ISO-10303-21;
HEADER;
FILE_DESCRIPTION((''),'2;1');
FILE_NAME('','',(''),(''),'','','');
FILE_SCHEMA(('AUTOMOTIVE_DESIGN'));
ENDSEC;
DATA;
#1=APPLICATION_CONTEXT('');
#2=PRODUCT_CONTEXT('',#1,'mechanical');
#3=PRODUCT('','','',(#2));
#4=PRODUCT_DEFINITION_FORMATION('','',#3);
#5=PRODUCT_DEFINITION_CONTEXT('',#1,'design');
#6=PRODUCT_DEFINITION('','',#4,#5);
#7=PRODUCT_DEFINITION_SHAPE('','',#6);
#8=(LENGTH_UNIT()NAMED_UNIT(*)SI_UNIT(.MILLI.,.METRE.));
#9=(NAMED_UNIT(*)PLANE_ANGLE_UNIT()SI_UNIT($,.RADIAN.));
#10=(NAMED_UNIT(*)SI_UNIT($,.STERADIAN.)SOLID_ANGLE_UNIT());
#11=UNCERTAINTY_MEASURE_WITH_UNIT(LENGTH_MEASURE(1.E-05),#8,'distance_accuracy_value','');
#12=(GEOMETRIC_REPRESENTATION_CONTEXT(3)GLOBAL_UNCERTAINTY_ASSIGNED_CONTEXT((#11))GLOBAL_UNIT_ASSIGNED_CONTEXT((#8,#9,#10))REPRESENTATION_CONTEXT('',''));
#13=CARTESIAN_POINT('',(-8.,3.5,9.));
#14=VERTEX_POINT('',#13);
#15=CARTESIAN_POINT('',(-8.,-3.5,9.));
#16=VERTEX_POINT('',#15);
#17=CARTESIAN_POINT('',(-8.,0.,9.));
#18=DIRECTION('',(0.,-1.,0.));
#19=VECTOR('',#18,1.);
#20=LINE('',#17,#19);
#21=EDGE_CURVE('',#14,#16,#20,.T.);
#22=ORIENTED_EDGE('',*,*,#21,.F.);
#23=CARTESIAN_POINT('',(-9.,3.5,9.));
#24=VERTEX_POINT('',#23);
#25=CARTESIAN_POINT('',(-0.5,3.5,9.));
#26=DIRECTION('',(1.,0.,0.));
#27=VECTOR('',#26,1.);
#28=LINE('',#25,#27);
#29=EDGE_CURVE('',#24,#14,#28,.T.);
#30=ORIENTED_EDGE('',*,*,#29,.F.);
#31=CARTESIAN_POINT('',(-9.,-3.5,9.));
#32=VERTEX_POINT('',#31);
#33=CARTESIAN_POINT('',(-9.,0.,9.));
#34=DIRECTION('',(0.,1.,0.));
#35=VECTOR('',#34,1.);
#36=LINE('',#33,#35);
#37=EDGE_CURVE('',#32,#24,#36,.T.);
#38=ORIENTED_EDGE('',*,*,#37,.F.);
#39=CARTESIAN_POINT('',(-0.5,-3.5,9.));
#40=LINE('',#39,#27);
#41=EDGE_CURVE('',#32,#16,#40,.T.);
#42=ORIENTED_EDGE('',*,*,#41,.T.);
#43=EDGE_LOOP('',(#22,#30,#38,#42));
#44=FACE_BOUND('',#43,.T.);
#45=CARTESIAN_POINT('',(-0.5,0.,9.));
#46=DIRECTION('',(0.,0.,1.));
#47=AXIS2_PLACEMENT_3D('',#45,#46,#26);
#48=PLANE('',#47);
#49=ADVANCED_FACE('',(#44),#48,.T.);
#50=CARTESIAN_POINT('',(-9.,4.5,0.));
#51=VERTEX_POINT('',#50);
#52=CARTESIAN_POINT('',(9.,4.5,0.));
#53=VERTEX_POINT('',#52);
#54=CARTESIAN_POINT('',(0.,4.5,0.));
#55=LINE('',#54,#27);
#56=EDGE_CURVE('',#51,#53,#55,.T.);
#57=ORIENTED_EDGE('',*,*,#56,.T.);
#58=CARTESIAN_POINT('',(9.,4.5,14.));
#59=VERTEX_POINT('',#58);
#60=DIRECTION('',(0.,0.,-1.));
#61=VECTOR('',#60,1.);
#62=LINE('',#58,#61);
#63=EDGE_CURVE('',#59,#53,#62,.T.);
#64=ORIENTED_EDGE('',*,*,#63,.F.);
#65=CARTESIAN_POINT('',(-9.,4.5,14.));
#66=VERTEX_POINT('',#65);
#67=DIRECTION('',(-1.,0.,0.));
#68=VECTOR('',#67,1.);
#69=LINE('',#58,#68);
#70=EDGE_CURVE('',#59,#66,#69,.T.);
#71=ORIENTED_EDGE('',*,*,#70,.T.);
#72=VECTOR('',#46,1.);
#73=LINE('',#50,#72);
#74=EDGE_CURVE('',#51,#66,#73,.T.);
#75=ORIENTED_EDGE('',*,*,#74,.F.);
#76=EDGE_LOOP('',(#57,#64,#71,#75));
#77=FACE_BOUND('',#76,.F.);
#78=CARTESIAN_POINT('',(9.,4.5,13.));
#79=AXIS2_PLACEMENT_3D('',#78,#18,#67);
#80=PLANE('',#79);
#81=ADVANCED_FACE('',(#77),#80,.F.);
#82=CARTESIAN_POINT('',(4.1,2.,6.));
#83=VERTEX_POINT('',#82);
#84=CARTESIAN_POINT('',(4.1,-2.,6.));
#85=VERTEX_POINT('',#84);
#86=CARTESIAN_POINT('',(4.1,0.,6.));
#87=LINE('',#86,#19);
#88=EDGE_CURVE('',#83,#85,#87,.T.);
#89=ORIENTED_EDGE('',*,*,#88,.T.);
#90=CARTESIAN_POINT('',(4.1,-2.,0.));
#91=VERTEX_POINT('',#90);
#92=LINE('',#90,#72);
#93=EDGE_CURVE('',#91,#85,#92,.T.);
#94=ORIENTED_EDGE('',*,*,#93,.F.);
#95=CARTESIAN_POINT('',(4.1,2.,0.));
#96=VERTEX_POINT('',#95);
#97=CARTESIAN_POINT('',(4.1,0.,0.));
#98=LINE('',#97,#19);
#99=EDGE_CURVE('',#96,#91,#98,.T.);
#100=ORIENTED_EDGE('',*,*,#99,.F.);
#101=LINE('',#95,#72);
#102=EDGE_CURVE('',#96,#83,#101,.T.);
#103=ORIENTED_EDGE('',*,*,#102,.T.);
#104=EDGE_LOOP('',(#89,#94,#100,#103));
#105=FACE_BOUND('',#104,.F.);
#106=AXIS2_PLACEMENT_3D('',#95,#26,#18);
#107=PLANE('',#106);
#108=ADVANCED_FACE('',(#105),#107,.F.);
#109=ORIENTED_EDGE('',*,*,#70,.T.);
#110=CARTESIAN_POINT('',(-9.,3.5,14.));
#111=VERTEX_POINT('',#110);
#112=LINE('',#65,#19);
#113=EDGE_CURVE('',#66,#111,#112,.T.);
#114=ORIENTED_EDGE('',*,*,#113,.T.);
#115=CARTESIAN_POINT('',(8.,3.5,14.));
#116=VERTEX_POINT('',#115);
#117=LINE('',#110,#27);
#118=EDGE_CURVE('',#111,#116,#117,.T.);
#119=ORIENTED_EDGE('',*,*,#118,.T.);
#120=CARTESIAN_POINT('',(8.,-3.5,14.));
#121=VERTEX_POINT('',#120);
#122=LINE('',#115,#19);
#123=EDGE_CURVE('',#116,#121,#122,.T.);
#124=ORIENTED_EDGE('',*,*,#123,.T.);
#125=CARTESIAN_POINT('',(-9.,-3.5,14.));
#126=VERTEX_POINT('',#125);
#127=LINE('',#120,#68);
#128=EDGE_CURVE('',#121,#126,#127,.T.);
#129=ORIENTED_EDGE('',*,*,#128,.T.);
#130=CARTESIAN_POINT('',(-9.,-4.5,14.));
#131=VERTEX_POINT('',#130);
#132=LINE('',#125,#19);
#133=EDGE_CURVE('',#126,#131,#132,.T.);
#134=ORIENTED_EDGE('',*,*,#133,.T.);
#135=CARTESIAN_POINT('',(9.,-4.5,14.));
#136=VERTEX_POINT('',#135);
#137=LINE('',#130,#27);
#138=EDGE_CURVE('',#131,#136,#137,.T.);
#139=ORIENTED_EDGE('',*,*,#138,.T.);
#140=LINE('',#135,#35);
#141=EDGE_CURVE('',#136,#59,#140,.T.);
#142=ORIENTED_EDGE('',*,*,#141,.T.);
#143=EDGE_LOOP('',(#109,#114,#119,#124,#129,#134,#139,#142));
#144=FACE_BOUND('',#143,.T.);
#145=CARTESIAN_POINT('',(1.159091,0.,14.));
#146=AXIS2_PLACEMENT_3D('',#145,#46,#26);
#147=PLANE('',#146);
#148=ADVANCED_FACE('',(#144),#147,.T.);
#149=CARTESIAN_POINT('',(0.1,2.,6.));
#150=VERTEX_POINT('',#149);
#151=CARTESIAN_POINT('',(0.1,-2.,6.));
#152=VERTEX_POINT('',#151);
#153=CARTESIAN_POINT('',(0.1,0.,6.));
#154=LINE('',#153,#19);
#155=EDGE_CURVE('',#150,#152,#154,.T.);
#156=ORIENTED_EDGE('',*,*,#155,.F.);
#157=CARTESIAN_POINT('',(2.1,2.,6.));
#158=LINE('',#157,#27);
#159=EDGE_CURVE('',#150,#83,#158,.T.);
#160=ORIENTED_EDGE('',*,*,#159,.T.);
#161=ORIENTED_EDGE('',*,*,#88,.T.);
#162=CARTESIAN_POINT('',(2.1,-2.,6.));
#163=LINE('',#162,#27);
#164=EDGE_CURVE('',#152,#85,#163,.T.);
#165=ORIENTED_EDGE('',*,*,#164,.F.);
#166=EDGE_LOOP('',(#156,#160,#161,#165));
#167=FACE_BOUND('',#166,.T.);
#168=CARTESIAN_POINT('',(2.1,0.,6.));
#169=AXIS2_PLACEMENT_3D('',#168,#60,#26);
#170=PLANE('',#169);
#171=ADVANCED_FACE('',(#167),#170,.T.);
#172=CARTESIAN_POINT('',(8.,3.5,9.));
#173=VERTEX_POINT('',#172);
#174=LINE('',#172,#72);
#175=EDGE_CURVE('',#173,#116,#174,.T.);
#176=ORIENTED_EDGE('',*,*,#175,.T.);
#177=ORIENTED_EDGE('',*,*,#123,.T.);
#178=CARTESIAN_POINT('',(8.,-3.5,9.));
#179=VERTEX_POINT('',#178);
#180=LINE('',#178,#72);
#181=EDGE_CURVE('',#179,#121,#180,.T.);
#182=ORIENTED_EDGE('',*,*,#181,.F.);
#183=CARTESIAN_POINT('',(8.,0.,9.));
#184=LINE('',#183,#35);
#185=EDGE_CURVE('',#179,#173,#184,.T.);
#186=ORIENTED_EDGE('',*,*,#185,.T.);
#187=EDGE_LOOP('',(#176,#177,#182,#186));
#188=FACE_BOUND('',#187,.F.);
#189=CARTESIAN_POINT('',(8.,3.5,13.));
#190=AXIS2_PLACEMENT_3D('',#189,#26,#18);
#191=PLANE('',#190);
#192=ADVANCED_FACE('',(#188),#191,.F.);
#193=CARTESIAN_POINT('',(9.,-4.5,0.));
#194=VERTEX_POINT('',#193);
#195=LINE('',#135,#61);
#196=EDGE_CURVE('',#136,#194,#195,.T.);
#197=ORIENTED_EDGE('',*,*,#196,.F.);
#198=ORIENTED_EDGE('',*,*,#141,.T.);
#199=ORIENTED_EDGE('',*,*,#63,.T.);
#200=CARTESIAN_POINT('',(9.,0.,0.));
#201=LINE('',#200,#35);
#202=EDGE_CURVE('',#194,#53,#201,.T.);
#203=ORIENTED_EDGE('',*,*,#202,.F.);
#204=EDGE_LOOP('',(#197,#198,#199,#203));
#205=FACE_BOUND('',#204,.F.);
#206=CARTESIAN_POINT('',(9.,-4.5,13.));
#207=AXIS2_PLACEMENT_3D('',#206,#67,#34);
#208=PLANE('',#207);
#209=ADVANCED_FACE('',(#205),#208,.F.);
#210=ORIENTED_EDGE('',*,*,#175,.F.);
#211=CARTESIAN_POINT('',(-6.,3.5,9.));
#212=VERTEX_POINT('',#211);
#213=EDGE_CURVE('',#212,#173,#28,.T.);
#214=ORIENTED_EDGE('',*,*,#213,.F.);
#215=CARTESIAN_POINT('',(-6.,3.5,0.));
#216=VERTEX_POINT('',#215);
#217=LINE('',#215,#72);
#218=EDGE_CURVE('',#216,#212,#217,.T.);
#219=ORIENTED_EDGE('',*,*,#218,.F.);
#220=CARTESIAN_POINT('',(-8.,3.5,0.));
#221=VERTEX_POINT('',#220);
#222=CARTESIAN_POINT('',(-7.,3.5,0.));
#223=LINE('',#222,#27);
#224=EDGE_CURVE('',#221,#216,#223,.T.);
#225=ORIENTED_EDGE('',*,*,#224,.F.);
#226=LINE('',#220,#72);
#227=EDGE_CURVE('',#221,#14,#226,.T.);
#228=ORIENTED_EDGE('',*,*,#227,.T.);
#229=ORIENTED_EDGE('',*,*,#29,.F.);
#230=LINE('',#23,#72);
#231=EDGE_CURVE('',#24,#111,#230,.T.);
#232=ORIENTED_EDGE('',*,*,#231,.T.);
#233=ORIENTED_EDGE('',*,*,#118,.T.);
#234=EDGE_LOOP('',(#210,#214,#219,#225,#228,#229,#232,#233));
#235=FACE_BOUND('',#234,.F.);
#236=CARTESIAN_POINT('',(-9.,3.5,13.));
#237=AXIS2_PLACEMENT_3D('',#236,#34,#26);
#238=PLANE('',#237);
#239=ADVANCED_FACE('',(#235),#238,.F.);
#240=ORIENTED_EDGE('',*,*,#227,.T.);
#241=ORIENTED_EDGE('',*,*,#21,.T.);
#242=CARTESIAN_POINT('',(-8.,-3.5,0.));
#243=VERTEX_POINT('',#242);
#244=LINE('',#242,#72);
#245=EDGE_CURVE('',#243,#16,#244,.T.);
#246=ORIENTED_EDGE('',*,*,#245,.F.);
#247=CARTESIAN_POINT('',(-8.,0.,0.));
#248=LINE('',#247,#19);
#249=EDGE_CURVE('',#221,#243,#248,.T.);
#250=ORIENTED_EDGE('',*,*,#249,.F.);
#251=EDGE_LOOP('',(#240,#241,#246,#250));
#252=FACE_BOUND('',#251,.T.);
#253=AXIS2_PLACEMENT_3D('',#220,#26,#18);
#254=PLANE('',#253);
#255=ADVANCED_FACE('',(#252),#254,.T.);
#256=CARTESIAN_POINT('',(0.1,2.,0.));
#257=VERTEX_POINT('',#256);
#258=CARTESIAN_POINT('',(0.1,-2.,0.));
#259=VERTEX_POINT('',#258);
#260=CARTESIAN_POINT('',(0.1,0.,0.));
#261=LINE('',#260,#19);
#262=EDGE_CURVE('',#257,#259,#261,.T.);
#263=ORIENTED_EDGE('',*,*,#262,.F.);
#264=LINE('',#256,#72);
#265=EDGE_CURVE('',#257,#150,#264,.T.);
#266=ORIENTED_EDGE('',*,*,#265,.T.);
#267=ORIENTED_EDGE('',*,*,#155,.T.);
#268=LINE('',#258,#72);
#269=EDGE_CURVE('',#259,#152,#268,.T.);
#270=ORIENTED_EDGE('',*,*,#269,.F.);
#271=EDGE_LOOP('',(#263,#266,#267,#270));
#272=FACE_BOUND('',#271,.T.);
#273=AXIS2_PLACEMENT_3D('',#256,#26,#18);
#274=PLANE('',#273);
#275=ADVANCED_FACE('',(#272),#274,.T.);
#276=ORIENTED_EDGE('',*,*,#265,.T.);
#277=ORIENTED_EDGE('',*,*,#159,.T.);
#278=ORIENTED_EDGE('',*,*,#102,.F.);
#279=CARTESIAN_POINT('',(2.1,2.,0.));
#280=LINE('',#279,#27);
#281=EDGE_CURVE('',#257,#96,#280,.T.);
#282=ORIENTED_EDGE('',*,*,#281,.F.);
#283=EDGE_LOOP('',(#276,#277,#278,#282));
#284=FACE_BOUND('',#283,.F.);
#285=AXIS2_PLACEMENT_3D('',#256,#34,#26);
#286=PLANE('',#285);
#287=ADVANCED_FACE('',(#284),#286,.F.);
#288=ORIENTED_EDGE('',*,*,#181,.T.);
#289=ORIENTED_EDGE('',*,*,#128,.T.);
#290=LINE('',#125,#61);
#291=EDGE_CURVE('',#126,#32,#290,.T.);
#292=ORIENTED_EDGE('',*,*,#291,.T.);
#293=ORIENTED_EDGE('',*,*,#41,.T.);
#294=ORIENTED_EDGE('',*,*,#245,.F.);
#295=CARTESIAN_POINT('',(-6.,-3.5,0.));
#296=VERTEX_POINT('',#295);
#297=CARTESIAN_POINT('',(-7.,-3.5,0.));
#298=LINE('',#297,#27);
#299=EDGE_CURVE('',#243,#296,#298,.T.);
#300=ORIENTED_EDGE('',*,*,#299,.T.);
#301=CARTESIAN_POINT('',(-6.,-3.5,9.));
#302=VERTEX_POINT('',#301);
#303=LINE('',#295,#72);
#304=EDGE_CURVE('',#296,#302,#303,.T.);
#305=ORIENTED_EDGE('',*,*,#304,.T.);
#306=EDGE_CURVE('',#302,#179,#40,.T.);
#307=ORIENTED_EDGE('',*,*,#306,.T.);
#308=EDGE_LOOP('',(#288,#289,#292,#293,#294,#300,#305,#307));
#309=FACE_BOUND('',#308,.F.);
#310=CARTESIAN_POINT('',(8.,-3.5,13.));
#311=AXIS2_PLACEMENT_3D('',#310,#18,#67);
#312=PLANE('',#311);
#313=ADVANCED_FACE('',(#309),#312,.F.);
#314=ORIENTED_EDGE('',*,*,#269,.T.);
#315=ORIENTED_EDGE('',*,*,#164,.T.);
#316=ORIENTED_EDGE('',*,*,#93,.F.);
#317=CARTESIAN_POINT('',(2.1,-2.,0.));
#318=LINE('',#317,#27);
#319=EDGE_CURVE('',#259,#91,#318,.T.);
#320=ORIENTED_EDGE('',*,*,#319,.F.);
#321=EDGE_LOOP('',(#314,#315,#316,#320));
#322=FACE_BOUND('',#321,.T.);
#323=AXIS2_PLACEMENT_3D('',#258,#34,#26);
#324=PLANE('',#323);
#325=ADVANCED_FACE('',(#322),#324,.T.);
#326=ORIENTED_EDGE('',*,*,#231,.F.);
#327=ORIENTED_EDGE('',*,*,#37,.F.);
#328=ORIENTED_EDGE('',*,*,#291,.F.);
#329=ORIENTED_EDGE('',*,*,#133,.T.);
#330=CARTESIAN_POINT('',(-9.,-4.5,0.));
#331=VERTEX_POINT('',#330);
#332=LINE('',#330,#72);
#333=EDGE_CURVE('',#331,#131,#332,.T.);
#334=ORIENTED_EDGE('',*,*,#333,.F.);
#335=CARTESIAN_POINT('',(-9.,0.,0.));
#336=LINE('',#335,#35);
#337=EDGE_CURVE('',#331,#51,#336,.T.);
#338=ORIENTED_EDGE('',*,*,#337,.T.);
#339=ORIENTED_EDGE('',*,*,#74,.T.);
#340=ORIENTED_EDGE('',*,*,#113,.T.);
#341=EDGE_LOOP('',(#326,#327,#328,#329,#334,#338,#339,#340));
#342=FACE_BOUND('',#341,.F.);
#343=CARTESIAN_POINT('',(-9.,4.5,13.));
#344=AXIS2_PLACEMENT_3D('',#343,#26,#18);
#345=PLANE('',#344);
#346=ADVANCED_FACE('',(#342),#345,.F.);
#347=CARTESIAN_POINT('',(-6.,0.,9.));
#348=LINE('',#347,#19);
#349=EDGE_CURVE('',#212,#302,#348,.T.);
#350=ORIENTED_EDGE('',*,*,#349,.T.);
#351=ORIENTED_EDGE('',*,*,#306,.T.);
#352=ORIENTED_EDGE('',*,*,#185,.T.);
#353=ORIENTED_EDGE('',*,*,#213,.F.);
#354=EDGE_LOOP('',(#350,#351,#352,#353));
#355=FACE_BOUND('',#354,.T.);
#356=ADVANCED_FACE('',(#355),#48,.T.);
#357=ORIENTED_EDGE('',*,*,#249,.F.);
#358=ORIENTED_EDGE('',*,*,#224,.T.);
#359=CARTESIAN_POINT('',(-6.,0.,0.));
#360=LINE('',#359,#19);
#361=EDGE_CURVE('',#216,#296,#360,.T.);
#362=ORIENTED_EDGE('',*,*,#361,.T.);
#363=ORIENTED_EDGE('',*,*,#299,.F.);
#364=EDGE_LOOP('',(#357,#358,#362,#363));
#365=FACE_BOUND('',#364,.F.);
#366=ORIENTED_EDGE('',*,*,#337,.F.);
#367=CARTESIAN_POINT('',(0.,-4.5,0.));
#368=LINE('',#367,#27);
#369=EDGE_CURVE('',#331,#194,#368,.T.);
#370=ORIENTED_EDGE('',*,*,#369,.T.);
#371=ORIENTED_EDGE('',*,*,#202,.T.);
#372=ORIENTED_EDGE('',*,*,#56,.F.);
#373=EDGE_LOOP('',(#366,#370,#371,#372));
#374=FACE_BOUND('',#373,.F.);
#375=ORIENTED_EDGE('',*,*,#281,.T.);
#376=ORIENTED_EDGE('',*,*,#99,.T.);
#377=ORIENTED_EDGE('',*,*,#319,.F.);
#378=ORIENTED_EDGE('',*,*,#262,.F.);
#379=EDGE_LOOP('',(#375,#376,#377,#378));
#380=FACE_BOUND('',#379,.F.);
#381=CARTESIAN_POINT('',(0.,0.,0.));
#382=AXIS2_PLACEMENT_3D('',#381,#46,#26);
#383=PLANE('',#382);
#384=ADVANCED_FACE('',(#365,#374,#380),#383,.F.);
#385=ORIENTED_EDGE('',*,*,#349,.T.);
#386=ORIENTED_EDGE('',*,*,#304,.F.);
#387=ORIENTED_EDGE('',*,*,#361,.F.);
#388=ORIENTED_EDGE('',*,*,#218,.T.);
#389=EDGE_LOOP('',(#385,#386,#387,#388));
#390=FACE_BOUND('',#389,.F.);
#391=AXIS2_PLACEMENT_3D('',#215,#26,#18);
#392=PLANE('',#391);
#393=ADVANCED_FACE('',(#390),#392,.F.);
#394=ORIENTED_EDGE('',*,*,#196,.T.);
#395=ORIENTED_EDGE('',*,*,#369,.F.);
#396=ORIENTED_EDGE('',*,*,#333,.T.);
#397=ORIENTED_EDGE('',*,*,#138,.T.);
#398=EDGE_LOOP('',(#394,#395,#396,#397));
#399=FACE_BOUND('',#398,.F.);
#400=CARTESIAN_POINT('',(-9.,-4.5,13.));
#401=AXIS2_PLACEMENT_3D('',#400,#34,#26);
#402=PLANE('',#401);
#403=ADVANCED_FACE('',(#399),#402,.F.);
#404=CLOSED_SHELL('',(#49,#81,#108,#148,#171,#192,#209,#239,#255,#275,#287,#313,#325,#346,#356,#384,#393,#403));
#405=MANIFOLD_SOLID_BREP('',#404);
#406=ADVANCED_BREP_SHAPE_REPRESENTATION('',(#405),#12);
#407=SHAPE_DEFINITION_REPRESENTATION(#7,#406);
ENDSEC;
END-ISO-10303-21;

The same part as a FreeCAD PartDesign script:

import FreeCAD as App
import Part
import Sketcher

V = App.Vector
Q = App.Units.Quantity


def add_polygon(sketch, points):
    """Adds a closed chain of lines whose ends are joined by coincident constraints."""
    first, n = sketch.GeometryCount, len(points)
    for a, b in zip(points, points[1:] + points[:1]):
        sketch.addGeometry(Part.LineSegment(App.Vector(*a, 0), App.Vector(*b, 0)), False)
    for i in range(n):
        sketch.addConstraint(Sketcher.Constraint("Coincident", first + i, 2, first + (i + 1) % n, 1))

doc = App.newDocument("Part")
body = doc.addObject("PartDesign::Body", "Body")

# Sketch on XY plane
sketch1 = doc.addObject("Sketcher::SketchObject", "Sketch")
body.addObject(sketch1)
sketch1.AttachmentSupport = (doc.XY_Plane, [""])
sketch1.MapMode = "FlatFace"
add_polygon(sketch1, [(-9, 4), (-9, -4), (9, -4), (9, 4)])  # lines 0-3
sketch1.addConstraint([
    Sketcher.Constraint("Vertical", 0),
    Sketcher.Constraint("Horizontal", 1),
    Sketcher.Constraint("Vertical", 2),
    Sketcher.Constraint("Horizontal", 3),
    Sketcher.Constraint("Symmetric", 0, 2, 2, 2, -1, 1),
    Sketcher.Constraint("DistanceX", 1, 1, 1, 2, Q("18 mm")),
    Sketcher.Constraint("DistanceY", 0, 2, 0, 1, Q("9 mm")),
])
pad1 = doc.addObject("PartDesign::Pad", "Pad")
body.addObject(pad1)
pad1.Profile = sketch1
pad1.Length = 13

# Sketch on XY plane
sketch2 = doc.addObject("Sketcher::SketchObject", "Sketch001")
body.addObject(sketch2)
sketch2.AttachmentSupport = (doc.XY_Plane, [""])
sketch2.MapMode = "FlatFace"
sketch2.AttachmentOffset = App.Placement(V(0, 0, 13), App.Rotation())
add_polygon(sketch2, [(-9, 4), (-9, -4), (8, -4), (8, 4)])  # lines 0-3
sketch2.addConstraint([
    Sketcher.Constraint("Vertical", 0),
    Sketcher.Constraint("Horizontal", 1),
    Sketcher.Constraint("Vertical", 2),
    Sketcher.Constraint("Horizontal", 3),
    Sketcher.Constraint("DistanceX", 1, 1, 1, 2, Q("17 mm")),
    Sketcher.Constraint("DistanceY", 0, 2, 0, 1, Q("7 mm")),
    Sketcher.Constraint("DistanceX", 0, 2, -1, 1, Q("9 mm")),
    Sketcher.Constraint("DistanceY", 0, 2, -1, 1, Q("3.5 mm")),
])
pocket1 = doc.addObject("PartDesign::Pocket", "Pocket")
body.addObject(pocket1)
pocket1.Profile = sketch2
pocket1.Length = 4

# Sketch on XY plane
sketch3 = doc.addObject("Sketcher::SketchObject", "Sketch002")
body.addObject(sketch3)
sketch3.AttachmentSupport = (doc.XY_Plane, [""])
sketch3.MapMode = "FlatFace"
add_polygon(sketch3, [(0.1, -2), (0.1, 2), (4.1, 2), (4.1, -2)])  # lines 0-3
sketch3.addConstraint([
    Sketcher.Constraint("Vertical", 0),
    Sketcher.Constraint("Horizontal", 1),
    Sketcher.Constraint("Vertical", 2),
    Sketcher.Constraint("Horizontal", 3),
    Sketcher.Constraint("Equal", 3, 0),
    Sketcher.Constraint("DistanceX", 1, 1, 1, 2, Q("4 mm")),
    Sketcher.Constraint("DistanceY", -1, 1, 0, 2, Q("2 mm")),
    Sketcher.Constraint("DistanceX", -1, 1, 0, 2, Q("0.1 mm")),
])
pocket2 = doc.addObject("PartDesign::Pocket", "Pocket001")
body.addObject(pocket2)
pocket2.Profile = sketch3
pocket2.Length = 6
pocket2.Reversed = True

# Sketch on XY plane
sketch4 = doc.addObject("Sketcher::SketchObject", "Sketch003")
body.addObject(sketch4)
sketch4.AttachmentSupport = (doc.XY_Plane, [""])
sketch4.MapMode = "FlatFace"
add_polygon(sketch4, [(-8, -3.5), (-8, 3.5), (-6, 3.5), (-6, -3.5)])  # lines 0-3
sketch4.addConstraint([
    Sketcher.Constraint("Vertical", 0),
    Sketcher.Constraint("Horizontal", 1),
    Sketcher.Constraint("Vertical", 2),
    Sketcher.Constraint("Horizontal", 3),
    Sketcher.Constraint("DistanceX", 1, 1, 1, 2, Q("2 mm")),
    Sketcher.Constraint("DistanceY", 0, 1, 0, 2, Q("7 mm")),
    Sketcher.Constraint("DistanceX", 0, 2, -1, 1, Q("8 mm")),
    Sketcher.Constraint("DistanceY", -1, 1, 0, 2, Q("3.5 mm")),
])
pocket3 = doc.addObject("PartDesign::Pocket", "Pocket002")
body.addObject(pocket3)
pocket3.Profile = sketch4
pocket3.Length = 9
pocket3.Reversed = True

# Sketch on XY plane
sketch5 = doc.addObject("Sketcher::SketchObject", "Sketch004")
body.addObject(sketch5)
sketch5.AttachmentSupport = (doc.XY_Plane, [""])
sketch5.MapMode = "FlatFace"
sketch5.AttachmentOffset = App.Placement(V(0, 0, 13), App.Rotation())
add_polygon(sketch5, [(9, 4.5), (-9, 4.5), (-9, 3.5), (8, 3.5), (8, -3.5), (-9, -3.5), (-9, -4.5), (9, -4.5)])  # lines 0-7
sketch5.addConstraint([
    Sketcher.Constraint("Horizontal", 0),
    Sketcher.Constraint("Vertical", 1),
    Sketcher.Constraint("Horizontal", 2),
    Sketcher.Constraint("Vertical", 3),
    Sketcher.Constraint("Horizontal", 4),
    Sketcher.Constraint("Vertical", 5),
    Sketcher.Constraint("Horizontal", 6),
    Sketcher.Constraint("Vertical", 7),
    Sketcher.Constraint("Symmetric", 0, 2, 6, 2, -1, 1),
    Sketcher.Constraint("Symmetric", 1, 2, 4, 2, -1),
    Sketcher.Constraint("DistanceX", 0, 2, 0, 1, Q("18 mm")),
    Sketcher.Constraint("DistanceX", 2, 1, 2, 2, Q("17 mm")),
    Sketcher.Constraint("DistanceY", 1, 2, 1, 1, Q("1 mm")),
    Sketcher.Constraint("DistanceY", 3, 2, 3, 1, Q("7 mm")),
])
pad2 = doc.addObject("PartDesign::Pad", "Pad001")
body.addObject(pad2)
pad2.Profile = sketch5
pad2.Length = 1

doc.recompute()
